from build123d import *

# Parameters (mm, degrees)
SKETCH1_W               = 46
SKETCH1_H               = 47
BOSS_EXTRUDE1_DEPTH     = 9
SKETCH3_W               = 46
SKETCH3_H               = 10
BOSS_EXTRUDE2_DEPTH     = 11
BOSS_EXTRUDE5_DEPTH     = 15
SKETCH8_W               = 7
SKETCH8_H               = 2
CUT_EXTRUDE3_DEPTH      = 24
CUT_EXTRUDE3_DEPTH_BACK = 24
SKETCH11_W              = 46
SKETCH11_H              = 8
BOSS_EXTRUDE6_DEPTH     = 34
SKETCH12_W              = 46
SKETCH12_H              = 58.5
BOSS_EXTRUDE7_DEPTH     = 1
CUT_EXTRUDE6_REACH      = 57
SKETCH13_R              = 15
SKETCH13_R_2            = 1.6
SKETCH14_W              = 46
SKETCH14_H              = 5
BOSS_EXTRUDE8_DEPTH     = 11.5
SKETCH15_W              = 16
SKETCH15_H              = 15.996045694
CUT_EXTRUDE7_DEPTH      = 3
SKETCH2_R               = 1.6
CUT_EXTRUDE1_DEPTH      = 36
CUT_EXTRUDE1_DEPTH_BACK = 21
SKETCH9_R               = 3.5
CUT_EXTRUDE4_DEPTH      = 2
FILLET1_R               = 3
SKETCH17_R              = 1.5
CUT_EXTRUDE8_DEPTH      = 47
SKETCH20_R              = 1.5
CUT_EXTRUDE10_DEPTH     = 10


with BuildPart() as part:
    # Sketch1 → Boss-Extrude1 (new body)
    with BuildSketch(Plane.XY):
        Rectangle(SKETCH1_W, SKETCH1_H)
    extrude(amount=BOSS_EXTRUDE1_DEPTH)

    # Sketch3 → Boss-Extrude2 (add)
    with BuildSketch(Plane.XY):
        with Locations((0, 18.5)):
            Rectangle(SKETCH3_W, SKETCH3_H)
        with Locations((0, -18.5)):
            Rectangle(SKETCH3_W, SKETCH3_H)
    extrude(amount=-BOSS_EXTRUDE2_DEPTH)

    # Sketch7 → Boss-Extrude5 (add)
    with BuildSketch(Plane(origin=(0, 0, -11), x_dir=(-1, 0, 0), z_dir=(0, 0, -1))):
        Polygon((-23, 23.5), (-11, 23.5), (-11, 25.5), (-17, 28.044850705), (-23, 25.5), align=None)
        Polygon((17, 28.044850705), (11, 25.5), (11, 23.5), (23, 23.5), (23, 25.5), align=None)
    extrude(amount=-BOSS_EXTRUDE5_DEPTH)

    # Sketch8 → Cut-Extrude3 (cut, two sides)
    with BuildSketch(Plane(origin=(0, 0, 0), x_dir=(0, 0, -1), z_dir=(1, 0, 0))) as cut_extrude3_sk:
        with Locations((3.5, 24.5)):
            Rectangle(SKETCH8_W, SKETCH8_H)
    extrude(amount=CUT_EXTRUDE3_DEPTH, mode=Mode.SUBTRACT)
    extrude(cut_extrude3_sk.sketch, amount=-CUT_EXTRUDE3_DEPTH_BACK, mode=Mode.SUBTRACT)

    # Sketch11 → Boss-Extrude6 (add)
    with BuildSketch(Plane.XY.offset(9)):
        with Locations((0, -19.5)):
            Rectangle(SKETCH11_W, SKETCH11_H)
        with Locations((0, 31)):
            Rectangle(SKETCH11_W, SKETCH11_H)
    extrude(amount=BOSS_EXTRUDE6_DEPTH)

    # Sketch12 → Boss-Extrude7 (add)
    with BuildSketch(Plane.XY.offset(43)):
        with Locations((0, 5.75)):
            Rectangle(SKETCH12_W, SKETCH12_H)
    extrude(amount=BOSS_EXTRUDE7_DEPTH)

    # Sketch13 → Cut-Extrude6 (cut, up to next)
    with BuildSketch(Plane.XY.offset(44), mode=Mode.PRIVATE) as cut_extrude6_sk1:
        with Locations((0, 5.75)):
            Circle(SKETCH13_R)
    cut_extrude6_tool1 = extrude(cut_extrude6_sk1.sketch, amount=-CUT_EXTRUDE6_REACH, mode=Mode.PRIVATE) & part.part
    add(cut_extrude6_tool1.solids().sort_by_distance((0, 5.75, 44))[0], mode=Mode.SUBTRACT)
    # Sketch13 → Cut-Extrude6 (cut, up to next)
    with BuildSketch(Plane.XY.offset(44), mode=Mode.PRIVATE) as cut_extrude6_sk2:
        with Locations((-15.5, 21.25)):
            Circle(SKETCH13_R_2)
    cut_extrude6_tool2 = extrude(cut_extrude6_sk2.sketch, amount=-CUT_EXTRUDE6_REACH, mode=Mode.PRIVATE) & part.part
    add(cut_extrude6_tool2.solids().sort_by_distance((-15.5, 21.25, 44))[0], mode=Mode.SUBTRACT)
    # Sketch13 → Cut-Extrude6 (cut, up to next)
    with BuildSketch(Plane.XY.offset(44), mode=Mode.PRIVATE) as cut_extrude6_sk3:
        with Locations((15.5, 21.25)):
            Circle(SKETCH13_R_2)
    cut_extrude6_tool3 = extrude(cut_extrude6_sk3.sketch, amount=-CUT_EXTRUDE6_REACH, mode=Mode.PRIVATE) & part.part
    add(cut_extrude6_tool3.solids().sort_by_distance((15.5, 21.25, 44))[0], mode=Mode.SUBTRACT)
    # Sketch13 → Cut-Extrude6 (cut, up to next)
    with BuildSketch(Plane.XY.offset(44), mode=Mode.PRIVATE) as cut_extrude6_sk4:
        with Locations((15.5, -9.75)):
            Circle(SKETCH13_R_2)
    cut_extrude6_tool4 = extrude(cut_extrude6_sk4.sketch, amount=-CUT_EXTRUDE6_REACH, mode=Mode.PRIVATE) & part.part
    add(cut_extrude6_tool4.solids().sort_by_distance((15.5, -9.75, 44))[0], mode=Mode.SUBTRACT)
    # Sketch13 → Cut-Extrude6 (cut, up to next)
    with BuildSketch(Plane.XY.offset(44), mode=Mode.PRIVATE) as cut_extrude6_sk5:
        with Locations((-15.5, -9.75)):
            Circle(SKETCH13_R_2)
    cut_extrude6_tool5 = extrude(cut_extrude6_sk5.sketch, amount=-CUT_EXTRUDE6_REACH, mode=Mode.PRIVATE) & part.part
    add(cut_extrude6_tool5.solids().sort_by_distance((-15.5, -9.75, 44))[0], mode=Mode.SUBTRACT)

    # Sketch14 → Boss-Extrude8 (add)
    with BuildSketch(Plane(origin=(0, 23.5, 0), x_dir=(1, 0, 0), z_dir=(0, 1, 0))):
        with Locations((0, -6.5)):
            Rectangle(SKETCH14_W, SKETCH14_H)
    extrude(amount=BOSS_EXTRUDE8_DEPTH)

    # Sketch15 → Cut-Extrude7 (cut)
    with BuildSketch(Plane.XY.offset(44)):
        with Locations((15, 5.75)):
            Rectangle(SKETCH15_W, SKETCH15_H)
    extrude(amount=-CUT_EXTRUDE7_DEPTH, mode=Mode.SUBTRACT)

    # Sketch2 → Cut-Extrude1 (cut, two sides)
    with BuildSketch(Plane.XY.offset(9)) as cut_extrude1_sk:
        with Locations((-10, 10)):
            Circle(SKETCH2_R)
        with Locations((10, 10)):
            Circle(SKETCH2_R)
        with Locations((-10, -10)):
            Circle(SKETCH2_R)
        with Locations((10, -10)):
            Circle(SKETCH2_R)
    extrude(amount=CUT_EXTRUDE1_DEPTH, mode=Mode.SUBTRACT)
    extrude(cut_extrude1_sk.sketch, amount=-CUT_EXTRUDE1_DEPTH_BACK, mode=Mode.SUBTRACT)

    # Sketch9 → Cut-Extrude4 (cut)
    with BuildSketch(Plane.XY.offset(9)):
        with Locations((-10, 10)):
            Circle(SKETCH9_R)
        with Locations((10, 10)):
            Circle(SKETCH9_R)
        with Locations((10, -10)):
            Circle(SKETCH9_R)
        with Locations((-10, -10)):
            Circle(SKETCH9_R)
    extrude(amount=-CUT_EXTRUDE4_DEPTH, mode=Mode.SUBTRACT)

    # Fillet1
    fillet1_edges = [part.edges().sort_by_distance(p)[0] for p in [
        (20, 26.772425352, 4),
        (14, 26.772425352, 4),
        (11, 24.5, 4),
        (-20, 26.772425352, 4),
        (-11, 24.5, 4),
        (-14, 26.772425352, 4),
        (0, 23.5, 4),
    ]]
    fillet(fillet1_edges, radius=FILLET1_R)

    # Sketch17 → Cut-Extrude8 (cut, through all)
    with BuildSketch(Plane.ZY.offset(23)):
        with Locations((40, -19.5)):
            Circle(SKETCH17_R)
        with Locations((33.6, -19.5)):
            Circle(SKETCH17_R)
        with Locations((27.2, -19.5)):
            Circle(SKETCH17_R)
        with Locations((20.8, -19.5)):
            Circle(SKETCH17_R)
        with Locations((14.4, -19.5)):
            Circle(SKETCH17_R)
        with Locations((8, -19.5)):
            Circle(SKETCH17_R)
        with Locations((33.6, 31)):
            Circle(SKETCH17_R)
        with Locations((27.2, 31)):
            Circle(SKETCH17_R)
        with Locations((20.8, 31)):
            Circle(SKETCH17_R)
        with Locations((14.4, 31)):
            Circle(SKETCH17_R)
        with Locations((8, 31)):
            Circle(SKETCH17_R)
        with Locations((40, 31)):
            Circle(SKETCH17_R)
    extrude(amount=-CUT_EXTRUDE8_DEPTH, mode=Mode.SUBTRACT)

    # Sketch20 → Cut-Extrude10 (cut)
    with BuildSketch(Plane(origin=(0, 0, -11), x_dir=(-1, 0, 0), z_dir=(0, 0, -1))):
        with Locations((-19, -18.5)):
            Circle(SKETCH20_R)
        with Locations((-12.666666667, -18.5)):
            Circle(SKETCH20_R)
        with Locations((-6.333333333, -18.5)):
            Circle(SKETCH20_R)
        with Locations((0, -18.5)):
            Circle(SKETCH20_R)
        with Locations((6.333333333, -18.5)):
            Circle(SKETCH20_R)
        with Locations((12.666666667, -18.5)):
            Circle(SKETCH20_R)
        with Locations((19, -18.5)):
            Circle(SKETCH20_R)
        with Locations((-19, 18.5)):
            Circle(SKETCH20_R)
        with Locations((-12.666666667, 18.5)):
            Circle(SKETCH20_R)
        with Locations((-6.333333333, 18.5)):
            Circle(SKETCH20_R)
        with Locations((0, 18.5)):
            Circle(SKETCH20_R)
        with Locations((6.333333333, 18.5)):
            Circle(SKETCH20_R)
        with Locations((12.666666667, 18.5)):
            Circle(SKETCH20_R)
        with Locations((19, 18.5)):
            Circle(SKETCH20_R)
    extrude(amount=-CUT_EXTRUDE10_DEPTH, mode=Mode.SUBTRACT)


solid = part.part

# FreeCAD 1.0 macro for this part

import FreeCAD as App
import Part
import Sketcher


def edges_at(feature, points):
    """Names of the edges that pass closest to the given points."""
    edges = feature.Shape.Edges
    near = lambda p: min(range(len(edges)), key=lambda i: edges[i].distToShape(Part.Vertex(*p))[0])
    return sorted({f"Edge{near(p) + 1}" for p in points})

doc = App.newDocument("Part")
body = doc.addObject("PartDesign::Body", "Body")
body.AllowCompound = True

# Sketch on XY plane
sketch1 = body.newObject("Sketcher::SketchObject", "Sketch")
sketch1.AttachmentSupport = (doc.getObject("XY_Plane"), [""])
sketch1.MapMode = "FlatFace"
sketch1.addGeometry(Part.LineSegment(App.Vector(-23, 24, 0), App.Vector(-23, -24, 0)), False)
sketch1.addGeometry(Part.LineSegment(App.Vector(-23, -24, 0), App.Vector(23, -24, 0)), False)
sketch1.addGeometry(Part.LineSegment(App.Vector(23, -24, 0), App.Vector(23, 24, 0)), False)
sketch1.addGeometry(Part.LineSegment(App.Vector(23, 24, 0), App.Vector(-23, 24, 0)), False)
sketch1.addConstraint(Sketcher.Constraint("Coincident", 0, 2, 1, 1))
sketch1.addConstraint(Sketcher.Constraint("Coincident", 1, 2, 2, 1))
sketch1.addConstraint(Sketcher.Constraint("Coincident", 2, 2, 3, 1))
sketch1.addConstraint(Sketcher.Constraint("Coincident", 3, 2, 0, 1))
sketch1.addConstraint(Sketcher.Constraint("Vertical", 0))
sketch1.addConstraint(Sketcher.Constraint("Horizontal", 1))
sketch1.addConstraint(Sketcher.Constraint("Vertical", 2))
sketch1.addConstraint(Sketcher.Constraint("Horizontal", 3))
sketch1.addConstraint(Sketcher.Constraint("Symmetric", 0, 2, 2, 2, -1, 1))
sketch1.addConstraint(Sketcher.Constraint("DistanceX", 1, 1, 1, 2, 46.0))
sketch1.addConstraint(Sketcher.Constraint("DistanceY", 0, 2, 0, 1, 47.0))
pad1 = body.newObject("PartDesign::Pad", "Pad")
pad1.Profile = sketch1
pad1.Length = 9

# Sketch on XY plane
sketch2 = body.newObject("Sketcher::SketchObject", "Sketch001")
sketch2.AttachmentSupport = (doc.getObject("XY_Plane"), [""])
sketch2.MapMode = "FlatFace"
sketch2.addGeometry(Part.LineSegment(App.Vector(-23, 24, 0), App.Vector(-23, 14, 0)), False)
sketch2.addGeometry(Part.LineSegment(App.Vector(-23, 14, 0), App.Vector(23, 14, 0)), False)
sketch2.addGeometry(Part.LineSegment(App.Vector(23, 14, 0), App.Vector(23, 24, 0)), False)
sketch2.addGeometry(Part.LineSegment(App.Vector(23, 24, 0), App.Vector(-23, 24, 0)), False)
sketch2.addGeometry(Part.LineSegment(App.Vector(-23, -14, 0), App.Vector(-23, -24, 0)), False)
sketch2.addGeometry(Part.LineSegment(App.Vector(-23, -24, 0), App.Vector(23, -24, 0)), False)
sketch2.addGeometry(Part.LineSegment(App.Vector(23, -24, 0), App.Vector(23, -14, 0)), False)
sketch2.addGeometry(Part.LineSegment(App.Vector(23, -14, 0), App.Vector(-23, -14, 0)), False)
sketch2.addConstraint(Sketcher.Constraint("Coincident", 0, 2, 1, 1))
sketch2.addConstraint(Sketcher.Constraint("Coincident", 1, 2, 2, 1))
sketch2.addConstraint(Sketcher.Constraint("Coincident", 2, 2, 3, 1))
sketch2.addConstraint(Sketcher.Constraint("Coincident", 3, 2, 0, 1))
sketch2.addConstraint(Sketcher.Constraint("Coincident", 4, 2, 5, 1))
sketch2.addConstraint(Sketcher.Constraint("Coincident", 5, 2, 6, 1))
sketch2.addConstraint(Sketcher.Constraint("Coincident", 6, 2, 7, 1))
sketch2.addConstraint(Sketcher.Constraint("Coincident", 7, 2, 4, 1))
sketch2.addConstraint(Sketcher.Constraint("Vertical", 0))
sketch2.addConstraint(Sketcher.Constraint("Horizontal", 1))
sketch2.addConstraint(Sketcher.Constraint("Vertical", 2))
sketch2.addConstraint(Sketcher.Constraint("Horizontal", 3))
sketch2.addConstraint(Sketcher.Constraint("Vertical", 4))
sketch2.addConstraint(Sketcher.Constraint("Horizontal", 5))
sketch2.addConstraint(Sketcher.Constraint("Vertical", 6))
sketch2.addConstraint(Sketcher.Constraint("Horizontal", 7))
sketch2.addConstraint(Sketcher.Constraint("Symmetric", 2, 2, 4, 2, -1, 1))
sketch2.addConstraint(Sketcher.Constraint("Symmetric", 0, 2, 6, 2, -1, 1))
sketch2.addConstraint(Sketcher.Constraint("Vertical", 3, 2, 4, 2))
sketch2.addConstraint(Sketcher.Constraint("DistanceX", 1, 1, 1, 2, 46.0))
sketch2.addConstraint(Sketcher.Constraint("DistanceY", 0, 2, 0, 1, 10.0))
sketch2.addConstraint(Sketcher.Constraint("DistanceY", 4, 2, 0, 2, 37.0))
pad2 = body.newObject("PartDesign::Pad", "Pad001")
pad2.Profile = sketch2
pad2.Length = 11
pad2.Reversed = True

# Sketch on XY plane
sketch3 = body.newObject("Sketcher::SketchObject", "Sketch002")
sketch3.AttachmentSupport = (doc.getObject("XY_Plane"), [""])
sketch3.MapMode = "FlatFace"
sketch3.AttachmentOffset = App.Placement(App.Vector(0, 0, -11), App.Rotation())
sketch3.addGeometry(Part.LineSegment(App.Vector(23, 23.5, 0), App.Vector(11, 23.5, 0)), False)
sketch3.addGeometry(Part.LineSegment(App.Vector(11, 23.5, 0), App.Vector(11, 25.5, 0)), False)
sketch3.addGeometry(Part.LineSegment(App.Vector(11, 25.5, 0), App.Vector(17, 28, 0)), False)
sketch3.addGeometry(Part.LineSegment(App.Vector(17, 28, 0), App.Vector(23, 25.5, 0)), False)
sketch3.addGeometry(Part.LineSegment(App.Vector(23, 25.5, 0), App.Vector(23, 23.5, 0)), False)
sketch3.addGeometry(Part.LineSegment(App.Vector(-17, 28, 0), App.Vector(-11, 25.5, 0)), False)
sketch3.addGeometry(Part.LineSegment(App.Vector(-11, 25.5, 0), App.Vector(-11, 23.5, 0)), False)
sketch3.addGeometry(Part.LineSegment(App.Vector(-11, 23.5, 0), App.Vector(-23, 23.5, 0)), False)
sketch3.addGeometry(Part.LineSegment(App.Vector(-23, 23.5, 0), App.Vector(-23, 25.5, 0)), False)
sketch3.addGeometry(Part.LineSegment(App.Vector(-23, 25.5, 0), App.Vector(-17, 28, 0)), False)
sketch3.addConstraint(Sketcher.Constraint("Coincident", 0, 2, 1, 1))
sketch3.addConstraint(Sketcher.Constraint("Coincident", 1, 2, 2, 1))
sketch3.addConstraint(Sketcher.Constraint("Coincident", 2, 2, 3, 1))
sketch3.addConstraint(Sketcher.Constraint("Coincident", 3, 2, 4, 1))
sketch3.addConstraint(Sketcher.Constraint("Coincident", 4, 2, 0, 1))
sketch3.addConstraint(Sketcher.Constraint("Coincident", 5, 2, 6, 1))
sketch3.addConstraint(Sketcher.Constraint("Coincident", 6, 2, 7, 1))
sketch3.addConstraint(Sketcher.Constraint("Coincident", 7, 2, 8, 1))
sketch3.addConstraint(Sketcher.Constraint("Coincident", 8, 2, 9, 1))
sketch3.addConstraint(Sketcher.Constraint("Coincident", 9, 2, 5, 1))
sketch3.addConstraint(Sketcher.Constraint("Horizontal", 0))
sketch3.addConstraint(Sketcher.Constraint("Vertical", 1))
sketch3.addConstraint(Sketcher.Constraint("Vertical", 4))
sketch3.addConstraint(Sketcher.Constraint("Vertical", 6))
sketch3.addConstraint(Sketcher.Constraint("Horizontal", 7))
sketch3.addConstraint(Sketcher.Constraint("Vertical", 8))
sketch3.addConstraint(Sketcher.Constraint("Symmetric", 1, 2, 5, 2, -2))
sketch3.addConstraint(Sketcher.Constraint("Symmetric", 4, 2, 7, 2, -2))
sketch3.addConstraint(Sketcher.Constraint("Symmetric", 2, 2, 9, 2, -2))
sketch3.addConstraint(Sketcher.Constraint("Parallel", 3, 5))
sketch3.addConstraint(Sketcher.Constraint("Parallel", 2, 9))
sketch3.addConstraint(Sketcher.Constraint("Horizontal", 1, 2, 3, 2))
sketch3.addConstraint(Sketcher.Constraint("DistanceX", 0, 2, 0, 1, 12.0))
sketch3.addConstraint(Sketcher.Constraint("DistanceY", 1, 1, 1, 2, 2.0))
sketch3.addConstraint(Sketcher.Constraint("DistanceX", -1, 1, 0, 2, 11.0))
sketch3.addConstraint(Sketcher.Constraint("DistanceY", -1, 1, 0, 2, 23.5))
sketch3.addConstraint(Sketcher.Constraint("Distance", 2, 6.517382))
pad3 = body.newObject("PartDesign::Pad", "Pad002")
pad3.Profile = sketch3
pad3.Length = 15

# Sketch on YZ plane
sketch4 = body.newObject("Sketcher::SketchObject", "Sketch003")
sketch4.AttachmentSupport = (doc.getObject("YZ_Plane"), [""])
sketch4.MapMode = "FlatFace"
sketch4.addGeometry(Part.LineSegment(App.Vector(25.5, 0, 0), App.Vector(23.5, 0, 0)), False)
sketch4.addGeometry(Part.LineSegment(App.Vector(23.5, 0, 0), App.Vector(23.5, -7, 0)), False)
sketch4.addGeometry(Part.LineSegment(App.Vector(23.5, -7, 0), App.Vector(25.5, -7, 0)), False)
sketch4.addGeometry(Part.LineSegment(App.Vector(25.5, -7, 0), App.Vector(25.5, 0, 0)), False)
sketch4.addConstraint(Sketcher.Constraint("Coincident", 0, 2, 1, 1))
sketch4.addConstraint(Sketcher.Constraint("Coincident", 1, 2, 2, 1))
sketch4.addConstraint(Sketcher.Constraint("Coincident", 2, 2, 3, 1))
sketch4.addConstraint(Sketcher.Constraint("Coincident", 3, 2, 0, 1))
sketch4.addConstraint(Sketcher.Constraint("Horizontal", 0))
sketch4.addConstraint(Sketcher.Constraint("Vertical", 1))
sketch4.addConstraint(Sketcher.Constraint("Horizontal", 2))
sketch4.addConstraint(Sketcher.Constraint("Vertical", 3))
sketch4.addConstraint(Sketcher.Constraint("PointOnObject", 0, 2, -1))
sketch4.addConstraint(Sketcher.Constraint("DistanceX", 0, 2, 0, 1, 2.0))
sketch4.addConstraint(Sketcher.Constraint("DistanceY", 1, 2, 1, 1, 7.0))
sketch4.addConstraint(Sketcher.Constraint("DistanceX", -1, 1, 0, 2, 23.5))
pocket1 = body.newObject("PartDesign::Pocket", "Pocket")
pocket1.Profile = sketch4
pocket1.Type = "ThroughAll"
pocket1.Midplane = True

# Sketch on XY plane
sketch5 = body.newObject("Sketcher::SketchObject", "Sketch004")
sketch5.AttachmentSupport = (doc.getObject("XY_Plane"), [""])
sketch5.MapMode = "FlatFace"
sketch5.AttachmentOffset = App.Placement(App.Vector(0, 0, 9), App.Rotation())
sketch5.addGeometry(Part.LineSegment(App.Vector(-23, -16, 0), App.Vector(-23, -24, 0)), False)
sketch5.addGeometry(Part.LineSegment(App.Vector(-23, -24, 0), App.Vector(23, -24, 0)), False)
sketch5.addGeometry(Part.LineSegment(App.Vector(23, -24, 0), App.Vector(23, -16, 0)), False)
sketch5.addGeometry(Part.LineSegment(App.Vector(23, -16, 0), App.Vector(-23, -16, 0)), False)
sketch5.addGeometry(Part.LineSegment(App.Vector(-23, 35, 0), App.Vector(-23, 27, 0)), False)
sketch5.addGeometry(Part.LineSegment(App.Vector(-23, 27, 0), App.Vector(23, 27, 0)), False)
sketch5.addGeometry(Part.LineSegment(App.Vector(23, 27, 0), App.Vector(23, 35, 0)), False)
sketch5.addGeometry(Part.LineSegment(App.Vector(23, 35, 0), App.Vector(-23, 35, 0)), False)
sketch5.addConstraint(Sketcher.Constraint("Coincident", 0, 2, 1, 1))
sketch5.addConstraint(Sketcher.Constraint("Coincident", 1, 2, 2, 1))
sketch5.addConstraint(Sketcher.Constraint("Coincident", 2, 2, 3, 1))
sketch5.addConstraint(Sketcher.Constraint("Coincident", 3, 2, 0, 1))
sketch5.addConstraint(Sketcher.Constraint("Coincident", 4, 2, 5, 1))
sketch5.addConstraint(Sketcher.Constraint("Coincident", 5, 2, 6, 1))
sketch5.addConstraint(Sketcher.Constraint("Coincident", 6, 2, 7, 1))
sketch5.addConstraint(Sketcher.Constraint("Coincident", 7, 2, 4, 1))
sketch5.addConstraint(Sketcher.Constraint("Vertical", 0))
sketch5.addConstraint(Sketcher.Constraint("Horizontal", 1))
sketch5.addConstraint(Sketcher.Constraint("Vertical", 2))
sketch5.addConstraint(Sketcher.Constraint("Horizontal", 3))
sketch5.addConstraint(Sketcher.Constraint("Vertical", 4))
sketch5.addConstraint(Sketcher.Constraint("Horizontal", 5))
sketch5.addConstraint(Sketcher.Constraint("Vertical", 6))
sketch5.addConstraint(Sketcher.Constraint("Horizontal", 7))
sketch5.addConstraint(Sketcher.Constraint("Vertical", 3, 2, 4, 2))
sketch5.addConstraint(Sketcher.Constraint("Vertical", 2, 2, 5, 2))
sketch5.addConstraint(Sketcher.Constraint("Equal", 2, 4))
sketch5.addConstraint(Sketcher.Constraint("DistanceX", 1, 1, 1, 2, 46.0))
sketch5.addConstraint(Sketcher.Constraint("DistanceY", 0, 2, 0, 1, 8.0))
sketch5.addConstraint(Sketcher.Constraint("DistanceX", 0, 2, -1, 1, 23.0))
sketch5.addConstraint(Sketcher.Constraint("DistanceY", -1, 1, 4, 2, 27.0))
sketch5.addConstraint(Sketcher.Constraint("DistanceY", 0, 2, -1, 1, 23.5))
pad4 = body.newObject("PartDesign::Pad", "Pad003")
pad4.Profile = sketch5
pad4.Length = 34

# Sketch on XY plane
sketch6 = body.newObject("Sketcher::SketchObject", "Sketch005")
sketch6.AttachmentSupport = (doc.getObject("XY_Plane"), [""])
sketch6.MapMode = "FlatFace"
sketch6.AttachmentOffset = App.Placement(App.Vector(0, 0, 43), App.Rotation())
sketch6.addGeometry(Part.LineSegment(App.Vector(-23, 35, 0), App.Vector(-23, -24, 0)), False)
sketch6.addGeometry(Part.LineSegment(App.Vector(-23, -24, 0), App.Vector(23, -24, 0)), False)
sketch6.addGeometry(Part.LineSegment(App.Vector(23, -24, 0), App.Vector(23, 35, 0)), False)
sketch6.addGeometry(Part.LineSegment(App.Vector(23, 35, 0), App.Vector(-23, 35, 0)), False)
sketch6.addConstraint(Sketcher.Constraint("Coincident", 0, 2, 1, 1))
sketch6.addConstraint(Sketcher.Constraint("Coincident", 1, 2, 2, 1))
sketch6.addConstraint(Sketcher.Constraint("Coincident", 2, 2, 3, 1))
sketch6.addConstraint(Sketcher.Constraint("Coincident", 3, 2, 0, 1))
sketch6.addConstraint(Sketcher.Constraint("Vertical", 0))
sketch6.addConstraint(Sketcher.Constraint("Horizontal", 1))
sketch6.addConstraint(Sketcher.Constraint("Vertical", 2))
sketch6.addConstraint(Sketcher.Constraint("Horizontal", 3))
sketch6.addConstraint(Sketcher.Constraint("DistanceX", 1, 1, 1, 2, 46.0))
sketch6.addConstraint(Sketcher.Constraint("DistanceY", 0, 2, 0, 1, 58.5))
sketch6.addConstraint(Sketcher.Constraint("DistanceX", 0, 2, -1, 1, 23.0))
sketch6.addConstraint(Sketcher.Constraint("DistanceY", -1, 1, 2, 2, 35.0))
pad5 = body.newObject("PartDesign::Pad", "Pad004")
pad5.Profile = sketch6
pad5.Length = 1

# Sketch on XY plane
sketch7 = body.newObject("Sketcher::SketchObject", "Sketch006")
sketch7.AttachmentSupport = (doc.getObject("XY_Plane"), [""])
sketch7.MapMode = "FlatFace"
sketch7.AttachmentOffset = App.Placement(App.Vector(0, 0, 44), App.Rotation())
sketch7.addGeometry(Part.Circle(App.Vector(0, 6, 0), App.Vector(0, 0, 1), 15), False)
sketch7.addConstraint(Sketcher.Constraint("PointOnObject", 0, 3, -2))
sketch7.addConstraint(Sketcher.Constraint("Diameter", 0, 30.0))
sketch7.addConstraint(Sketcher.Constraint("DistanceY", -1, 1, 0, 3, 5.75))
pocket2 = body.newObject("PartDesign::Pocket", "Pocket001")
pocket2.Profile = sketch7
pocket2.Type = "UpToFirst"

# Sketch on XY plane
sketch8 = body.newObject("Sketcher::SketchObject", "Sketch007")
sketch8.AttachmentSupport = (doc.getObject("XY_Plane"), [""])
sketch8.MapMode = "FlatFace"
sketch8.AttachmentOffset = App.Placement(App.Vector(0, 0, 44), App.Rotation())
sketch8.addGeometry(Part.Circle(App.Vector(-15.5, 21.2, 0), App.Vector(0, 0, 1), 1.6), False)
sketch8.addConstraint(Sketcher.Constraint("Diameter", 0, 3.2))
sketch8.addConstraint(Sketcher.Constraint("DistanceX", 0, 3, -1, 1, 15.5))
sketch8.addConstraint(Sketcher.Constraint("DistanceY", -1, 1, 0, 3, 21.25))
pocket3 = body.newObject("PartDesign::Pocket", "Pocket002")
pocket3.Profile = sketch8
pocket3.Type = "UpToFirst"

# Sketch on XY plane
sketch9 = body.newObject("Sketcher::SketchObject", "Sketch008")
sketch9.AttachmentSupport = (doc.getObject("XY_Plane"), [""])
sketch9.MapMode = "FlatFace"
sketch9.AttachmentOffset = App.Placement(App.Vector(0, 0, 44), App.Rotation())
sketch9.addGeometry(Part.Circle(App.Vector(15.5, 21.2, 0), App.Vector(0, 0, 1), 1.6), False)
sketch9.addConstraint(Sketcher.Constraint("Diameter", 0, 3.2))
sketch9.addConstraint(Sketcher.Constraint("DistanceX", -1, 1, 0, 3, 15.5))
sketch9.addConstraint(Sketcher.Constraint("DistanceY", -1, 1, 0, 3, 21.25))
pocket4 = body.newObject("PartDesign::Pocket", "Pocket003")
pocket4.Profile = sketch9
pocket4.Type = "UpToFirst"

# Sketch on XY plane
sketch10 = body.newObject("Sketcher::SketchObject", "Sketch009")
sketch10.AttachmentSupport = (doc.getObject("XY_Plane"), [""])
sketch10.MapMode = "FlatFace"
sketch10.AttachmentOffset = App.Placement(App.Vector(0, 0, 44), App.Rotation())
sketch10.addGeometry(Part.Circle(App.Vector(15.5, -9.8, 0), App.Vector(0, 0, 1), 1.6), False)
sketch10.addConstraint(Sketcher.Constraint("Diameter", 0, 3.2))
sketch10.addConstraint(Sketcher.Constraint("DistanceX", -1, 1, 0, 3, 15.5))
sketch10.addConstraint(Sketcher.Constraint("DistanceY", 0, 3, -1, 1, 9.75))
pocket5 = body.newObject("PartDesign::Pocket", "Pocket004")
pocket5.Profile = sketch10
pocket5.Type = "UpToFirst"

# Sketch on XY plane
sketch11 = body.newObject("Sketcher::SketchObject", "Sketch010")
sketch11.AttachmentSupport = (doc.getObject("XY_Plane"), [""])
sketch11.MapMode = "FlatFace"
sketch11.AttachmentOffset = App.Placement(App.Vector(0, 0, 44), App.Rotation())
sketch11.addGeometry(Part.Circle(App.Vector(-15.5, -9.8, 0), App.Vector(0, 0, 1), 1.6), False)
sketch11.addConstraint(Sketcher.Constraint("Diameter", 0, 3.2))
sketch11.addConstraint(Sketcher.Constraint("DistanceX", 0, 3, -1, 1, 15.5))
sketch11.addConstraint(Sketcher.Constraint("DistanceY", 0, 3, -1, 1, 9.75))
pocket6 = body.newObject("PartDesign::Pocket", "Pocket005")
pocket6.Profile = sketch11
pocket6.Type = "UpToFirst"

# Sketch on XZ plane
sketch12 = body.newObject("Sketcher::SketchObject", "Sketch011")
sketch12.AttachmentSupport = (doc.getObject("XZ_Plane"), [""])
sketch12.MapMode = "FlatFace"
sketch12.AttachmentOffset = App.Placement(App.Vector(0, 0, -23.5), App.Rotation())
sketch12.addGeometry(Part.LineSegment(App.Vector(-23, 4, 0), App.Vector(-23, 9, 0)), False)
sketch12.addGeometry(Part.LineSegment(App.Vector(-23, 9, 0), App.Vector(23, 9, 0)), False)
sketch12.addGeometry(Part.LineSegment(App.Vector(23, 9, 0), App.Vector(23, 4, 0)), False)
sketch12.addGeometry(Part.LineSegment(App.Vector(23, 4, 0), App.Vector(-23, 4, 0)), False)
sketch12.addConstraint(Sketcher.Constraint("Coincident", 0, 2, 1, 1))
sketch12.addConstraint(Sketcher.Constraint("Coincident", 1, 2, 2, 1))
sketch12.addConstraint(Sketcher.Constraint("Coincident", 2, 2, 3, 1))
sketch12.addConstraint(Sketcher.Constraint("Coincident", 3, 2, 0, 1))
sketch12.addConstraint(Sketcher.Constraint("Vertical", 0))
sketch12.addConstraint(Sketcher.Constraint("Horizontal", 1))
sketch12.addConstraint(Sketcher.Constraint("Vertical", 2))
sketch12.addConstraint(Sketcher.Constraint("Horizontal", 3))
sketch12.addConstraint(Sketcher.Constraint("DistanceX", 1, 1, 1, 2, 46.0))
sketch12.addConstraint(Sketcher.Constraint("DistanceY", 0, 1, 0, 2, 5.0))
sketch12.addConstraint(Sketcher.Constraint("DistanceX", 0, 2, -1, 1, 23.0))
sketch12.addConstraint(Sketcher.Constraint("DistanceY", -1, 1, 0, 2, 9.0))
pad6 = body.newObject("PartDesign::Pad", "Pad005")
pad6.Profile = sketch12
pad6.Length = 11.5
pad6.Reversed = True

# Sketch on XY plane
sketch13 = body.newObject("Sketcher::SketchObject", "Sketch012")
sketch13.AttachmentSupport = (doc.getObject("XY_Plane"), [""])
sketch13.MapMode = "FlatFace"
sketch13.AttachmentOffset = App.Placement(App.Vector(0, 0, 44), App.Rotation())
sketch13.addGeometry(Part.LineSegment(App.Vector(7, 14, 0), App.Vector(7, -2, 0)), False)
sketch13.addGeometry(Part.LineSegment(App.Vector(7, -2, 0), App.Vector(23, -2, 0)), False)
sketch13.addGeometry(Part.LineSegment(App.Vector(23, -2, 0), App.Vector(23, 14, 0)), False)
sketch13.addGeometry(Part.LineSegment(App.Vector(23, 14, 0), App.Vector(7, 14, 0)), False)
sketch13.addConstraint(Sketcher.Constraint("Coincident", 0, 2, 1, 1))
sketch13.addConstraint(Sketcher.Constraint("Coincident", 1, 2, 2, 1))
sketch13.addConstraint(Sketcher.Constraint("Coincident", 2, 2, 3, 1))
sketch13.addConstraint(Sketcher.Constraint("Coincident", 3, 2, 0, 1))
sketch13.addConstraint(Sketcher.Constraint("Vertical", 0))
sketch13.addConstraint(Sketcher.Constraint("Horizontal", 1))
sketch13.addConstraint(Sketcher.Constraint("Vertical", 2))
sketch13.addConstraint(Sketcher.Constraint("Horizontal", 3))
sketch13.addConstraint(Sketcher.Constraint("DistanceX", 1, 1, 1, 2, 16.0))
sketch13.addConstraint(Sketcher.Constraint("DistanceX", -1, 1, 0, 2, 7.0))
sketch13.addConstraint(Sketcher.Constraint("DistanceY", 0, 2, 0, 1, 15.996046))
sketch13.addConstraint(Sketcher.Constraint("DistanceY", 0, 2, -1, 1, 2.248023))
pocket7 = body.newObject("PartDesign::Pocket", "Pocket006")
pocket7.Profile = sketch13
pocket7.Length = 3

# Sketch on XY plane
sketch14 = body.newObject("Sketcher::SketchObject", "Sketch013")
sketch14.AttachmentSupport = (doc.getObject("XY_Plane"), [""])
sketch14.MapMode = "FlatFace"
sketch14.AttachmentOffset = App.Placement(App.Vector(0, 0, 9), App.Rotation())
sketch14.addGeometry(Part.Circle(App.Vector(-10, 10, 0), App.Vector(0, 0, 1), 1.6), False)
sketch14.addGeometry(Part.Circle(App.Vector(10, 10, 0), App.Vector(0, 0, 1), 1.6), False)
sketch14.addGeometry(Part.Circle(App.Vector(-10, -10, 0), App.Vector(0, 0, 1), 1.6), False)
sketch14.addGeometry(Part.Circle(App.Vector(10, -10, 0), App.Vector(0, 0, 1), 1.6), False)
sketch14.addConstraint(Sketcher.Constraint("Equal", 0, 1))
sketch14.addConstraint(Sketcher.Constraint("Equal", 1, 2))
sketch14.addConstraint(Sketcher.Constraint("Equal", 2, 3))
sketch14.addConstraint(Sketcher.Constraint("Symmetric", 1, 3, 2, 3, -1, 1))
sketch14.addConstraint(Sketcher.Constraint("Symmetric", 0, 3, 3, 3, -1, 1))
sketch14.addConstraint(Sketcher.Constraint("Symmetric", 0, 3, 1, 3, -2))
sketch14.addConstraint(Sketcher.Constraint("Diameter", 0, 3.2))
sketch14.addConstraint(Sketcher.Constraint("DistanceX", 0, 3, -1, 1, 10.0))
sketch14.addConstraint(Sketcher.Constraint("DistanceY", -1, 1, 0, 3, 10.0))
pocket8 = body.newObject("PartDesign::Pocket", "Pocket007")
pocket8.Profile = sketch14
pocket8.Type = "ThroughAll"
pocket8.Midplane = True

# Sketch on XY plane
sketch15 = body.newObject("Sketcher::SketchObject", "Sketch014")
sketch15.AttachmentSupport = (doc.getObject("XY_Plane"), [""])
sketch15.MapMode = "FlatFace"
sketch15.AttachmentOffset = App.Placement(App.Vector(0, 0, 9), App.Rotation())
sketch15.addGeometry(Part.Circle(App.Vector(-10, 10, 0), App.Vector(0, 0, 1), 3.5), False)
sketch15.addGeometry(Part.Circle(App.Vector(10, 10, 0), App.Vector(0, 0, 1), 3.5), False)
sketch15.addGeometry(Part.Circle(App.Vector(10, -10, 0), App.Vector(0, 0, 1), 3.5), False)
sketch15.addGeometry(Part.Circle(App.Vector(-10, -10, 0), App.Vector(0, 0, 1), 3.5), False)
sketch15.addConstraint(Sketcher.Constraint("Equal", 0, 1))
sketch15.addConstraint(Sketcher.Constraint("Equal", 1, 2))
sketch15.addConstraint(Sketcher.Constraint("Equal", 2, 3))
sketch15.addConstraint(Sketcher.Constraint("Symmetric", 0, 3, 2, 3, -1, 1))
sketch15.addConstraint(Sketcher.Constraint("Symmetric", 1, 3, 3, 3, -1, 1))
sketch15.addConstraint(Sketcher.Constraint("Symmetric", 0, 3, 1, 3, -2))
sketch15.addConstraint(Sketcher.Constraint("Diameter", 0, 7.0))
sketch15.addConstraint(Sketcher.Constraint("DistanceX", 0, 3, -1, 1, 10.0))
sketch15.addConstraint(Sketcher.Constraint("DistanceY", -1, 1, 0, 3, 10.0))
pocket9 = body.newObject("PartDesign::Pocket", "Pocket008")
pocket9.Profile = sketch15
pocket9.Length = 2
doc.recompute()

fillet = body.newObject("PartDesign::Fillet", "Fillet")
fillet.Base = (pocket9, edges_at(pocket9, [
    (20, 26.772, 4),
    (14, 26.772, 4),
    (11, 24.5, 4),
    (-20, 26.772, 4),
    (-11, 24.5, 4),
    (-14, 26.772, 4),
    (0, 23.5, 4),
]))
fillet.Radius = 3

# Sketch on YZ plane
sketch16 = body.newObject("Sketcher::SketchObject", "Sketch015")
sketch16.AttachmentSupport = (doc.getObject("YZ_Plane"), [""])
sketch16.MapMode = "FlatFace"
sketch16.AttachmentOffset = App.Placement(App.Vector(0, 0, -23), App.Rotation())
sketch16.addGeometry(Part.Circle(App.Vector(-19.5, 40, 0), App.Vector(0, 0, 1), 1.5), False)
sketch16.addGeometry(Part.Circle(App.Vector(-19.5, 33.6, 0), App.Vector(0, 0, 1), 1.5), False)
sketch16.addGeometry(Part.Circle(App.Vector(-19.5, 27.2, 0), App.Vector(0, 0, 1), 1.5), False)
sketch16.addGeometry(Part.Circle(App.Vector(-19.5, 20.8, 0), App.Vector(0, 0, 1), 1.5), False)
sketch16.addGeometry(Part.Circle(App.Vector(-19.5, 14.4, 0), App.Vector(0, 0, 1), 1.5), False)
sketch16.addGeometry(Part.Circle(App.Vector(-19.5, 8, 0), App.Vector(0, 0, 1), 1.5), False)
sketch16.addGeometry(Part.Circle(App.Vector(31, 33.6, 0), App.Vector(0, 0, 1), 1.5), False)
sketch16.addGeometry(Part.Circle(App.Vector(31, 27.2, 0), App.Vector(0, 0, 1), 1.5), False)
sketch16.addGeometry(Part.Circle(App.Vector(31, 20.8, 0), App.Vector(0, 0, 1), 1.5), False)
sketch16.addGeometry(Part.Circle(App.Vector(31, 14.4, 0), App.Vector(0, 0, 1), 1.5), False)
sketch16.addGeometry(Part.Circle(App.Vector(31, 8, 0), App.Vector(0, 0, 1), 1.5), False)
sketch16.addGeometry(Part.Circle(App.Vector(31, 40, 0), App.Vector(0, 0, 1), 1.5), False)
sketch16.addConstraint(Sketcher.Constraint("Equal", 0, 1))
sketch16.addConstraint(Sketcher.Constraint("Equal", 1, 2))
sketch16.addConstraint(Sketcher.Constraint("Equal", 2, 3))
sketch16.addConstraint(Sketcher.Constraint("Equal", 3, 4))
sketch16.addConstraint(Sketcher.Constraint("Equal", 4, 5))
sketch16.addConstraint(Sketcher.Constraint("Equal", 5, 6))
sketch16.addConstraint(Sketcher.Constraint("Equal", 6, 7))
sketch16.addConstraint(Sketcher.Constraint("Equal", 7, 8))
sketch16.addConstraint(Sketcher.Constraint("Equal", 8, 9))
sketch16.addConstraint(Sketcher.Constraint("Equal", 9, 10))
sketch16.addConstraint(Sketcher.Constraint("Equal", 10, 11))
sketch16.addConstraint(Sketcher.Constraint("Horizontal", 1, 3, 6, 3))
sketch16.addConstraint(Sketcher.Constraint("Horizontal", 2, 3, 7, 3))
sketch16.addConstraint(Sketcher.Constraint("Horizontal", 3, 3, 8, 3))
sketch16.addConstraint(Sketcher.Constraint("Horizontal", 4, 3, 9, 3))
sketch16.addConstraint(Sketcher.Constraint("Horizontal", 5, 3, 10, 3))
sketch16.addConstraint(Sketcher.Constraint("Horizontal", 0, 3, 11, 3))
sketch16.addConstraint(Sketcher.Constraint("Vertical", 0, 3, 1, 3))
sketch16.addConstraint(Sketcher.Constraint("Vertical", 1, 3, 2, 3))
sketch16.addConstraint(Sketcher.Constraint("Vertical", 2, 3, 3, 3))
sketch16.addConstraint(Sketcher.Constraint("Vertical", 3, 3, 4, 3))
sketch16.addConstraint(Sketcher.Constraint("Vertical", 4, 3, 5, 3))
sketch16.addConstraint(Sketcher.Constraint("Vertical", 6, 3, 7, 3))
sketch16.addConstraint(Sketcher.Constraint("Vertical", 7, 3, 8, 3))
sketch16.addConstraint(Sketcher.Constraint("Vertical", 8, 3, 9, 3))
sketch16.addConstraint(Sketcher.Constraint("Vertical", 9, 3, 10, 3))
sketch16.addConstraint(Sketcher.Constraint("Vertical", 10, 3, 11, 3))
sketch16.addConstraint(Sketcher.Constraint("Diameter", 0, 3.0))
sketch16.addConstraint(Sketcher.Constraint("DistanceY", -1, 1, 0, 3, 40.0))
sketch16.addConstraint(Sketcher.Constraint("DistanceY", -1, 1, 5, 3, 8.0))
sketch16.addConstraint(Sketcher.Constraint("DistanceX", -1, 1, 6, 3, 31.0))
sketch16.addConstraint(Sketcher.Constraint("DistanceX", 0, 3, -1, 1, 19.5))
sketch16.addConstraint(Sketcher.Constraint("DistanceY", -1, 1, 1, 3, 33.6))
sketch16.addConstraint(Sketcher.Constraint("DistanceY", -1, 1, 2, 3, 27.2))
sketch16.addConstraint(Sketcher.Constraint("DistanceY", -1, 1, 3, 3, 20.8))
sketch16.addConstraint(Sketcher.Constraint("DistanceY", -1, 1, 4, 3, 14.4))
pocket10 = body.newObject("PartDesign::Pocket", "Pocket009")
pocket10.Profile = sketch16
pocket10.Type = "ThroughAll"
pocket10.Reversed = True

# Sketch on XY plane
sketch17 = body.newObject("Sketcher::SketchObject", "Sketch016")
sketch17.AttachmentSupport = (doc.getObject("XY_Plane"), [""])
sketch17.MapMode = "FlatFace"
sketch17.AttachmentOffset = App.Placement(App.Vector(0, 0, -11), App.Rotation())
sketch17.addGeometry(Part.Circle(App.Vector(19, -18.5, 0), App.Vector(0, 0, 1), 1.5), False)
sketch17.addGeometry(Part.Circle(App.Vector(12.7, -18.5, 0), App.Vector(0, 0, 1), 1.5), False)
sketch17.addGeometry(Part.Circle(App.Vector(6.3, -18.5, 0), App.Vector(0, 0, 1), 1.5), False)
sketch17.addGeometry(Part.Circle(App.Vector(0, -18.5, 0), App.Vector(0, 0, 1), 1.5), False)
sketch17.addGeometry(Part.Circle(App.Vector(-6.3, -18.5, 0), App.Vector(0, 0, 1), 1.5), False)
sketch17.addGeometry(Part.Circle(App.Vector(-12.7, -18.5, 0), App.Vector(0, 0, 1), 1.5), False)
sketch17.addGeometry(Part.Circle(App.Vector(-19, -18.5, 0), App.Vector(0, 0, 1), 1.5), False)
sketch17.addGeometry(Part.Circle(App.Vector(19, 18.5, 0), App.Vector(0, 0, 1), 1.5), False)
sketch17.addGeometry(Part.Circle(App.Vector(12.7, 18.5, 0), App.Vector(0, 0, 1), 1.5), False)
sketch17.addGeometry(Part.Circle(App.Vector(6.3, 18.5, 0), App.Vector(0, 0, 1), 1.5), False)
sketch17.addGeometry(Part.Circle(App.Vector(0, 18.5, 0), App.Vector(0, 0, 1), 1.5), False)
sketch17.addGeometry(Part.Circle(App.Vector(-6.3, 18.5, 0), App.Vector(0, 0, 1), 1.5), False)
sketch17.addGeometry(Part.Circle(App.Vector(-12.7, 18.5, 0), App.Vector(0, 0, 1), 1.5), False)
sketch17.addGeometry(Part.Circle(App.Vector(-19, 18.5, 0), App.Vector(0, 0, 1), 1.5), False)
sketch17.addConstraint(Sketcher.Constraint("Equal", 0, 1))
sketch17.addConstraint(Sketcher.Constraint("Equal", 1, 2))
sketch17.addConstraint(Sketcher.Constraint("Equal", 2, 3))
sketch17.addConstraint(Sketcher.Constraint("Equal", 3, 4))
sketch17.addConstraint(Sketcher.Constraint("Equal", 4, 5))
sketch17.addConstraint(Sketcher.Constraint("Equal", 5, 6))
sketch17.addConstraint(Sketcher.Constraint("Equal", 6, 7))
sketch17.addConstraint(Sketcher.Constraint("Equal", 7, 8))
sketch17.addConstraint(Sketcher.Constraint("Equal", 8, 9))
sketch17.addConstraint(Sketcher.Constraint("Equal", 9, 10))
sketch17.addConstraint(Sketcher.Constraint("Equal", 10, 11))
sketch17.addConstraint(Sketcher.Constraint("Equal", 11, 12))
sketch17.addConstraint(Sketcher.Constraint("Equal", 12, 13))
sketch17.addConstraint(Sketcher.Constraint("Symmetric", 6, 3, 7, 3, -1, 1))
sketch17.addConstraint(Sketcher.Constraint("Symmetric", 5, 3, 8, 3, -1, 1))
sketch17.addConstraint(Sketcher.Constraint("Symmetric", 4, 3, 9, 3, -1, 1))
sketch17.addConstraint(Sketcher.Constraint("Symmetric", 3, 3, 10, 3, -1, 1))
sketch17.addConstraint(Sketcher.Constraint("Symmetric", 2, 3, 11, 3, -1, 1))
sketch17.addConstraint(Sketcher.Constraint("Symmetric", 1, 3, 12, 3, -1, 1))
sketch17.addConstraint(Sketcher.Constraint("Symmetric", 0, 3, 13, 3, -1, 1))
sketch17.addConstraint(Sketcher.Constraint("Symmetric", 2, 3, 4, 3, -2))
sketch17.addConstraint(Sketcher.Constraint("Symmetric", 1, 3, 5, 3, -2))
sketch17.addConstraint(Sketcher.Constraint("Symmetric", 0, 3, 6, 3, -2))
sketch17.addConstraint(Sketcher.Constraint("PointOnObject", 3, 3, -2))
sketch17.addConstraint(Sketcher.Constraint("Horizontal", 0, 3, 1, 3))
sketch17.addConstraint(Sketcher.Constraint("Horizontal", 1, 3, 2, 3))
sketch17.addConstraint(Sketcher.Constraint("Horizontal", 2, 3, 3, 3))
sketch17.addConstraint(Sketcher.Constraint("Diameter", 0, 3.0))
sketch17.addConstraint(Sketcher.Constraint("DistanceX", -1, 1, 0, 3, 19.0))
sketch17.addConstraint(Sketcher.Constraint("DistanceX", 4, 3, 1, 3, 19.0))
sketch17.addConstraint(Sketcher.Constraint("DistanceY", 0, 3, 7, 3, 37.0))
sketch17.addConstraint(Sketcher.Constraint("DistanceX", -1, 1, 1, 3, 12.666667))
pocket11 = body.newObject("PartDesign::Pocket", "Pocket010")
pocket11.Profile = sketch17
pocket11.Length = 10
pocket11.Reversed = True

doc.recompute()
